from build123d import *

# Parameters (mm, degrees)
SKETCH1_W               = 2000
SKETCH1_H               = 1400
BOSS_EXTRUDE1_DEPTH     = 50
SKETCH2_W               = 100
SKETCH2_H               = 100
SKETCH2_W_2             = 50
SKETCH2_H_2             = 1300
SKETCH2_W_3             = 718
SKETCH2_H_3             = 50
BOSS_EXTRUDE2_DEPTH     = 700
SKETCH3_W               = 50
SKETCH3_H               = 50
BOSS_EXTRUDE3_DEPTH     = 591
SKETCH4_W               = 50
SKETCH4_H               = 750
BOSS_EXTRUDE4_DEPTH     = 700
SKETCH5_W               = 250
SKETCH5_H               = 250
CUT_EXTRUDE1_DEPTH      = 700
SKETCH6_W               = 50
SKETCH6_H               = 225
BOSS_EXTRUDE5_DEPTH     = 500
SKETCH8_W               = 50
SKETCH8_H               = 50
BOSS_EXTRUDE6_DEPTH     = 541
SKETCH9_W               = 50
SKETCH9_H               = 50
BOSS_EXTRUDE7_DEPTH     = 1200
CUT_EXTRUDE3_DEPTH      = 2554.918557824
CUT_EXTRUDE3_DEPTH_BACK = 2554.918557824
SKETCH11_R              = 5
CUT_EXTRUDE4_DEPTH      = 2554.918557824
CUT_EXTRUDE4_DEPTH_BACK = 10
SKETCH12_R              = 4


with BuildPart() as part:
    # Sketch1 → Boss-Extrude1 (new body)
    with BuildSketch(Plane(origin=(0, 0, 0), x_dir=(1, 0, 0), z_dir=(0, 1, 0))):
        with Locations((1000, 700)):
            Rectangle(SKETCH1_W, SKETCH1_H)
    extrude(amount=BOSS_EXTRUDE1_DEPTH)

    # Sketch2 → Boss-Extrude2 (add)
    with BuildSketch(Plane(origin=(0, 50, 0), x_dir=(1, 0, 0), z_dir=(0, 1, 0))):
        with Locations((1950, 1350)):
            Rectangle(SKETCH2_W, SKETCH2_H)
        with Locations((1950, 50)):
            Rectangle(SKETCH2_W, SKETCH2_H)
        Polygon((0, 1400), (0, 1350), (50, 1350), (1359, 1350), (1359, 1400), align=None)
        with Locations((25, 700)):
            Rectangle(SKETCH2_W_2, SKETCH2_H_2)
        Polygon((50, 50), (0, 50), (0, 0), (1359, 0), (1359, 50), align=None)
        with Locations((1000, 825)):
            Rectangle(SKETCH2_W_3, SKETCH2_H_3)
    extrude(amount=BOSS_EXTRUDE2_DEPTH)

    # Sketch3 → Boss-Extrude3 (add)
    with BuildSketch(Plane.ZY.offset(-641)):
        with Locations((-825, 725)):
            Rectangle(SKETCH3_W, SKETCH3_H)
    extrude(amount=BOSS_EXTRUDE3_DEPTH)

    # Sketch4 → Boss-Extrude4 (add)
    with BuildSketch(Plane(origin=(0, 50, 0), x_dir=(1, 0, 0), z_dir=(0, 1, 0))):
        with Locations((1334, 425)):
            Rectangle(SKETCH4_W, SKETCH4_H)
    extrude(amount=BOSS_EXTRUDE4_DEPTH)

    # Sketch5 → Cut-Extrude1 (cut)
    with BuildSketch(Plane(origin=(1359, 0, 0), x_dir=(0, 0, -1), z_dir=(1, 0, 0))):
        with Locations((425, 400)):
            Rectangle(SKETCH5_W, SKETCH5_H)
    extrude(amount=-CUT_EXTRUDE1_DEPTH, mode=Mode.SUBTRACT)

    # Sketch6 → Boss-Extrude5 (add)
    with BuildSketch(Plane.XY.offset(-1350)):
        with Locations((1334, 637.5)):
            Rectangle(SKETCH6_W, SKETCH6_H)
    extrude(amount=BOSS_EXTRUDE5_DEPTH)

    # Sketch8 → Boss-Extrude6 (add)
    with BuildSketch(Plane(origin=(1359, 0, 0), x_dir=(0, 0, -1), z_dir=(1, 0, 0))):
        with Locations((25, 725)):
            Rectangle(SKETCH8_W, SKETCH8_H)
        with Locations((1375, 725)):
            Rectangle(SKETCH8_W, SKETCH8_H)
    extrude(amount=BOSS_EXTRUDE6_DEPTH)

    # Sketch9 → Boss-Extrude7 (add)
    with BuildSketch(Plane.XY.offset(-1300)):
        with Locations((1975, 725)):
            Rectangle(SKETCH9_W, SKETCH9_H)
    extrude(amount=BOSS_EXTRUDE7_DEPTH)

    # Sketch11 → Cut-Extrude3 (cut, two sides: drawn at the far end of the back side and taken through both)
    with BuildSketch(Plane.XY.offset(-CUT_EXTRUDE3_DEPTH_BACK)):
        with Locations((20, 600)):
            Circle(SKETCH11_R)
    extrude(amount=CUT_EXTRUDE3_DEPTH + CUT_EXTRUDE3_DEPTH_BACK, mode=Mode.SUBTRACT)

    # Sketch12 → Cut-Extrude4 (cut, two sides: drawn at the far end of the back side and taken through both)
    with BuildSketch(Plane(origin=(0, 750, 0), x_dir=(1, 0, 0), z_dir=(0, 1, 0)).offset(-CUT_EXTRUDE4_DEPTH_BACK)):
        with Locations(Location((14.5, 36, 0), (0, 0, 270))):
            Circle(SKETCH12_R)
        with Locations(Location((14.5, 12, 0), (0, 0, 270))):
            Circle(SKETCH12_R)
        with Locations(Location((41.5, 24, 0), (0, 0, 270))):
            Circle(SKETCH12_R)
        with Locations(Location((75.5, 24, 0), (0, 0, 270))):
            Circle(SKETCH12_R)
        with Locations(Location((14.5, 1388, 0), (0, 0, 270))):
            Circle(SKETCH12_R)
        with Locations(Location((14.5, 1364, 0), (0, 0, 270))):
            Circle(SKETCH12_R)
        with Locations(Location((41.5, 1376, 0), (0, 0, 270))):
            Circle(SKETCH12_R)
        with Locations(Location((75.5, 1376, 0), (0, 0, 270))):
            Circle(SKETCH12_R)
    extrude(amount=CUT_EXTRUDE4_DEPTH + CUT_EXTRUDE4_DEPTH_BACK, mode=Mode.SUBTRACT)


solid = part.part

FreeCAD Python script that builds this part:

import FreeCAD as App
import Part
import Sketcher
from FreeCAD import Vector

doc = App.newDocument("Part")
body = doc.addObject("PartDesign::Body", "Body")

sketch1 = doc.addObject("Sketcher::SketchObject", "Sketch")
body.addObject(sketch1)
sketch1.AttachmentSupport = (doc.XZ_Plane, [""])
sketch1.MapMode = "FlatFace"
sketch1.addGeometry([
    Part.LineSegment(Vector(0, -1400, 0), Vector(0, 0, 0)),
    Part.LineSegment(Vector(0, 0, 0), Vector(2000, 0, 0)),
    Part.LineSegment(Vector(2000, 0, 0), Vector(2000, -1400, 0)),
    Part.LineSegment(Vector(2000, -1400, 0), Vector(0, -1400, 0)),
], False)
sketch1.addConstraint([
    Sketcher.Constraint("Coincident", 0, 2, 1, 1),
    Sketcher.Constraint("Coincident", 1, 2, 2, 1),
    Sketcher.Constraint("Coincident", 2, 2, 3, 1),
    Sketcher.Constraint("Coincident", 3, 2, 0, 1),
    Sketcher.Constraint("Vertical", 0),
    Sketcher.Constraint("Horizontal", 1),
    Sketcher.Constraint("Vertical", 2),
    Sketcher.Constraint("Horizontal", 3),
    Sketcher.Constraint("Coincident", 0, 2, -1, 1),
    Sketcher.Constraint("DistanceX", 1, 1, 1, 2, 2000.0),
    Sketcher.Constraint("DistanceY", 0, 1, 0, 2, 1400.0),
])
pad1 = doc.addObject("PartDesign::Pad", "Pad")
body.addObject(pad1)
pad1.Profile = sketch1
pad1.Length = 50
pad1.Reversed = True

sketch2 = doc.addObject("Sketcher::SketchObject", "Sketch001")
body.addObject(sketch2)
sketch2.AttachmentSupport = (doc.XZ_Plane, [""])
sketch2.MapMode = "FlatFace"
sketch2.AttachmentOffset = App.Placement(Vector(0, 0, -50), App.Rotation())
sketch2.addGeometry([
    Part.LineSegment(Vector(1900, -1400, 0), Vector(1900, -1300, 0)),
    Part.LineSegment(Vector(1900, -1300, 0), Vector(2000, -1300, 0)),
    Part.LineSegment(Vector(2000, -1300, 0), Vector(2000, -1400, 0)),
    Part.LineSegment(Vector(2000, -1400, 0), Vector(1900, -1400, 0)),
    Part.LineSegment(Vector(1900, -100, 0), Vector(1900, 0, 0)),
    Part.LineSegment(Vector(1900, 0, 0), Vector(2000, 0, 0)),
    Part.LineSegment(Vector(2000, 0, 0), Vector(2000, -100, 0)),
    Part.LineSegment(Vector(2000, -100, 0), Vector(1900, -100, 0)),
    Part.LineSegment(Vector(0, -1400, 0), Vector(0, 0, 0)),
    Part.LineSegment(Vector(0, 0, 0), Vector(1359, 0, 0)),
    Part.LineSegment(Vector(1359, 0, 0), Vector(1359, -50, 0)),
    Part.LineSegment(Vector(1359, -50, 0), Vector(50, -50, 0)),
    Part.LineSegment(Vector(50, -50, 0), Vector(50, -1350, 0)),
    Part.LineSegment(Vector(50, -1350, 0), Vector(1359, -1350, 0)),
    Part.LineSegment(Vector(1359, -1350, 0), Vector(1359, -1400, 0)),
    Part.LineSegment(Vector(1359, -1400, 0), Vector(0, -1400, 0)),
    Part.LineSegment(Vector(641, -850, 0), Vector(641, -800, 0)),
    Part.LineSegment(Vector(641, -800, 0), Vector(1359, -800, 0)),
    Part.LineSegment(Vector(1359, -800, 0), Vector(1359, -850, 0)),
    Part.LineSegment(Vector(1359, -850, 0), Vector(641, -850, 0)),
], False)
sketch2.addConstraint([
    Sketcher.Constraint("Coincident", 0, 2, 1, 1),
    Sketcher.Constraint("Coincident", 1, 2, 2, 1),
    Sketcher.Constraint("Coincident", 2, 2, 3, 1),
    Sketcher.Constraint("Coincident", 3, 2, 0, 1),
    Sketcher.Constraint("Coincident", 4, 2, 5, 1),
    Sketcher.Constraint("Coincident", 5, 2, 6, 1),
    Sketcher.Constraint("Coincident", 6, 2, 7, 1),
    Sketcher.Constraint("Coincident", 7, 2, 4, 1),
    Sketcher.Constraint("Coincident", 8, 2, 9, 1),
    Sketcher.Constraint("Coincident", 9, 2, 10, 1),
    Sketcher.Constraint("Coincident", 10, 2, 11, 1),
    Sketcher.Constraint("Coincident", 11, 2, 12, 1),
    Sketcher.Constraint("Coincident", 12, 2, 13, 1),
    Sketcher.Constraint("Coincident", 13, 2, 14, 1),
    Sketcher.Constraint("Coincident", 14, 2, 15, 1),
    Sketcher.Constraint("Coincident", 15, 2, 8, 1),
    Sketcher.Constraint("Coincident", 16, 2, 17, 1),
    Sketcher.Constraint("Coincident", 17, 2, 18, 1),
    Sketcher.Constraint("Coincident", 18, 2, 19, 1),
    Sketcher.Constraint("Coincident", 19, 2, 16, 1),
    Sketcher.Constraint("Vertical", 0),
    Sketcher.Constraint("Horizontal", 1),
    Sketcher.Constraint("Vertical", 2),
    Sketcher.Constraint("Horizontal", 3),
    Sketcher.Constraint("Vertical", 4),
    Sketcher.Constraint("Horizontal", 5),
    Sketcher.Constraint("Vertical", 6),
    Sketcher.Constraint("Horizontal", 7),
    Sketcher.Constraint("Vertical", 8),
    Sketcher.Constraint("Horizontal", 9),
    Sketcher.Constraint("Vertical", 10),
    Sketcher.Constraint("Horizontal", 11),
    Sketcher.Constraint("Vertical", 12),
    Sketcher.Constraint("Horizontal", 13),
    Sketcher.Constraint("Vertical", 14),
    Sketcher.Constraint("Horizontal", 15),
    Sketcher.Constraint("Vertical", 16),
    Sketcher.Constraint("Horizontal", 17),
    Sketcher.Constraint("Vertical", 18),
    Sketcher.Constraint("Horizontal", 19),
    Sketcher.Constraint("Coincident", 8, 2, -1, 1),
    Sketcher.Constraint("PointOnObject", 4, 2, -1),
    Sketcher.Constraint("Horizontal", 3, 2, 14, 2),
    Sketcher.Constraint("Vertical", 3, 2, 4, 2),
    Sketcher.Constraint("Vertical", 2, 2, 5, 2),
    Sketcher.Constraint("Vertical", 10, 2, 13, 2),
    Sketcher.Constraint("Vertical", 14, 2, 17, 2),
    Sketcher.Constraint("Equal", 7, 0),
    Sketcher.Constraint("Equal", 2, 4),
    Sketcher.Constraint("Equal", 10, 14),
    Sketcher.Constraint("Equal", 14, 16),
    Sketcher.Constraint("DistanceX", 1, 1, 1, 2, 100.0),
    Sketcher.Constraint("DistanceX", 9, 1, 9, 2, 1359.0),
    Sketcher.Constraint("DistanceX", 11, 2, 11, 1, 1309.0),
    Sketcher.Constraint("DistanceX", 17, 1, 17, 2, 718.0),
    Sketcher.Constraint("DistanceY", 8, 1, 8, 2, 1400.0),
    Sketcher.Constraint("DistanceY", 10, 2, 10, 1, 50.0),
    Sketcher.Constraint("DistanceX", -1, 1, 0, 2, 1900.0),
    Sketcher.Constraint("DistanceY", 16, 2, -1, 1, 800.0),
])
pad2 = doc.addObject("PartDesign::Pad", "Pad001")
body.addObject(pad2)
pad2.Profile = sketch2
pad2.Length = 700
pad2.Reversed = True

sketch3 = doc.addObject("Sketcher::SketchObject", "Sketch002")
body.addObject(sketch3)
sketch3.AttachmentSupport = (doc.YZ_Plane, [""])
sketch3.MapMode = "FlatFace"
sketch3.AttachmentOffset = App.Placement(Vector(0, 0, 641), App.Rotation())
sketch3.addGeometry([
    Part.LineSegment(Vector(750, -850, 0), Vector(700, -850, 0)),
    Part.LineSegment(Vector(700, -850, 0), Vector(700, -800, 0)),
    Part.LineSegment(Vector(700, -800, 0), Vector(750, -800, 0)),
    Part.LineSegment(Vector(750, -800, 0), Vector(750, -850, 0)),
], False)
sketch3.addConstraint([
    Sketcher.Constraint("Coincident", 0, 2, 1, 1),
    Sketcher.Constraint("Coincident", 1, 2, 2, 1),
    Sketcher.Constraint("Coincident", 2, 2, 3, 1),
    Sketcher.Constraint("Coincident", 3, 2, 0, 1),
    Sketcher.Constraint("Horizontal", 0),
    Sketcher.Constraint("Vertical", 1),
    Sketcher.Constraint("Horizontal", 2),
    Sketcher.Constraint("Vertical", 3),
    Sketcher.Constraint("Equal", 2, 1),
    Sketcher.Constraint("DistanceX", 0, 2, 0, 1, 50.0),
    Sketcher.Constraint("DistanceX", -1, 1, 0, 2, 700.0),
    Sketcher.Constraint("DistanceY", 0, 2, -1, 1, 850.0),
])
pad3 = doc.addObject("PartDesign::Pad", "Pad002")
body.addObject(pad3)
pad3.Profile = sketch3
pad3.Length = 591
pad3.Reversed = True

sketch4 = doc.addObject("Sketcher::SketchObject", "Sketch003")
body.addObject(sketch4)
sketch4.AttachmentSupport = (doc.XZ_Plane, [""])
sketch4.MapMode = "FlatFace"
sketch4.AttachmentOffset = App.Placement(Vector(0, 0, -50), App.Rotation())
sketch4.addGeometry([
    Part.LineSegment(Vector(1309, -800, 0), Vector(1309, -50, 0)),
    Part.LineSegment(Vector(1309, -50, 0), Vector(1359, -50, 0)),
    Part.LineSegment(Vector(1359, -50, 0), Vector(1359, -800, 0)),
    Part.LineSegment(Vector(1359, -800, 0), Vector(1309, -800, 0)),
], False)
sketch4.addConstraint([
    Sketcher.Constraint("Coincident", 0, 2, 1, 1),
    Sketcher.Constraint("Coincident", 1, 2, 2, 1),
    Sketcher.Constraint("Coincident", 2, 2, 3, 1),
    Sketcher.Constraint("Coincident", 3, 2, 0, 1),
    Sketcher.Constraint("Vertical", 0),
    Sketcher.Constraint("Horizontal", 1),
    Sketcher.Constraint("Vertical", 2),
    Sketcher.Constraint("Horizontal", 3),
    Sketcher.Constraint("DistanceX", 1, 1, 1, 2, 50.0),
    Sketcher.Constraint("DistanceY", 0, 1, 0, 2, 750.0),
    Sketcher.Constraint("DistanceX", -1, 1, 0, 2, 1309.0),
    Sketcher.Constraint("DistanceY", 0, 2, -1, 1, 50.0),
])
pad4 = doc.addObject("PartDesign::Pad", "Pad003")
body.addObject(pad4)
pad4.Profile = sketch4
pad4.Length = 700
pad4.Reversed = True

sketch5 = doc.addObject("Sketcher::SketchObject", "Sketch004")
body.addObject(sketch5)
sketch5.AttachmentSupport = (doc.YZ_Plane, [""])
sketch5.MapMode = "FlatFace"
sketch5.AttachmentOffset = App.Placement(Vector(0, 0, 1359), App.Rotation())
sketch5.addGeometry([
    Part.LineSegment(Vector(525, -300, 0), Vector(275, -300, 0)),
    Part.LineSegment(Vector(275, -300, 0), Vector(275, -550, 0)),
    Part.LineSegment(Vector(275, -550, 0), Vector(525, -550, 0)),
    Part.LineSegment(Vector(525, -550, 0), Vector(525, -300, 0)),
], False)
sketch5.addConstraint([
    Sketcher.Constraint("Coincident", 0, 2, 1, 1),
    Sketcher.Constraint("Coincident", 1, 2, 2, 1),
    Sketcher.Constraint("Coincident", 2, 2, 3, 1),
    Sketcher.Constraint("Coincident", 3, 2, 0, 1),
    Sketcher.Constraint("Horizontal", 0),
    Sketcher.Constraint("Vertical", 1),
    Sketcher.Constraint("Horizontal", 2),
    Sketcher.Constraint("Vertical", 3),
    Sketcher.Constraint("Equal", 2, 1),
    Sketcher.Constraint("DistanceX", 0, 2, 0, 1, 250.0),
    Sketcher.Constraint("DistanceX", -1, 1, 0, 2, 275.0),
    Sketcher.Constraint("DistanceY", 0, 2, -1, 1, 300.0),
])
pocket1 = doc.addObject("PartDesign::Pocket", "Pocket")
body.addObject(pocket1)
pocket1.Profile = sketch5
pocket1.Length = 700

sketch6 = doc.addObject("Sketcher::SketchObject", "Sketch005")
body.addObject(sketch6)
sketch6.AttachmentSupport = (doc.XY_Plane, [""])
sketch6.MapMode = "FlatFace"
sketch6.AttachmentOffset = App.Placement(Vector(0, 0, -1350), App.Rotation())
sketch6.addGeometry([
    Part.LineSegment(Vector(1309, 750, 0), Vector(1309, 525, 0)),
    Part.LineSegment(Vector(1309, 525, 0), Vector(1359, 525, 0)),
    Part.LineSegment(Vector(1359, 525, 0), Vector(1359, 750, 0)),
    Part.LineSegment(Vector(1359, 750, 0), Vector(1309, 750, 0)),
], False)
sketch6.addConstraint([
    Sketcher.Constraint("Coincident", 0, 2, 1, 1),
    Sketcher.Constraint("Coincident", 1, 2, 2, 1),
    Sketcher.Constraint("Coincident", 2, 2, 3, 1),
    Sketcher.Constraint("Coincident", 3, 2, 0, 1),
    Sketcher.Constraint("Vertical", 0),
    Sketcher.Constraint("Horizontal", 1),
    Sketcher.Constraint("Vertical", 2),
    Sketcher.Constraint("Horizontal", 3),
    Sketcher.Constraint("DistanceX", 1, 1, 1, 2, 50.0),
    Sketcher.Constraint("DistanceY", 0, 2, 0, 1, 225.0),
    Sketcher.Constraint("DistanceX", -1, 1, 0, 2, 1309.0),
    Sketcher.Constraint("DistanceY", -1, 1, 0, 2, 525.0),
])
pad5 = doc.addObject("PartDesign::Pad", "Pad004")
body.addObject(pad5)
pad5.Profile = sketch6
pad5.Length = 500

sketch7 = doc.addObject("Sketcher::SketchObject", "Sketch006")
body.addObject(sketch7)
sketch7.AttachmentSupport = (doc.YZ_Plane, [""])
sketch7.MapMode = "FlatFace"
sketch7.AttachmentOffset = App.Placement(Vector(0, 0, 1359), App.Rotation())
sketch7.addGeometry([
    Part.LineSegment(Vector(750, 0, 0), Vector(700, 0, 0)),
    Part.LineSegment(Vector(700, 0, 0), Vector(700, -50, 0)),
    Part.LineSegment(Vector(700, -50, 0), Vector(750, -50, 0)),
    Part.LineSegment(Vector(750, -50, 0), Vector(750, 0, 0)),
    Part.LineSegment(Vector(750, -1350, 0), Vector(700, -1350, 0)),
    Part.LineSegment(Vector(700, -1350, 0), Vector(700, -1400, 0)),
    Part.LineSegment(Vector(700, -1400, 0), Vector(750, -1400, 0)),
    Part.LineSegment(Vector(750, -1400, 0), Vector(750, -1350, 0)),
], False)
sketch7.addConstraint([
    Sketcher.Constraint("Coincident", 0, 2, 1, 1),
    Sketcher.Constraint("Coincident", 1, 2, 2, 1),
    Sketcher.Constraint("Coincident", 2, 2, 3, 1),
    Sketcher.Constraint("Coincident", 3, 2, 0, 1),
    Sketcher.Constraint("Coincident", 4, 2, 5, 1),
    Sketcher.Constraint("Coincident", 5, 2, 6, 1),
    Sketcher.Constraint("Coincident", 6, 2, 7, 1),
    Sketcher.Constraint("Coincident", 7, 2, 4, 1),
    Sketcher.Constraint("Horizontal", 0),
    Sketcher.Constraint("Vertical", 1),
    Sketcher.Constraint("Horizontal", 2),
    Sketcher.Constraint("Vertical", 3),
    Sketcher.Constraint("Horizontal", 4),
    Sketcher.Constraint("Vertical", 5),
    Sketcher.Constraint("Horizontal", 6),
    Sketcher.Constraint("Vertical", 7),
    Sketcher.Constraint("PointOnObject", 0, 2, -1),
    Sketcher.Constraint("Vertical", 1, 2, 4, 2),
    Sketcher.Constraint("Vertical", 3, 2, 6, 2),
    Sketcher.Constraint("Equal", 6, 1),
    Sketcher.Constraint("Equal", 3, 5),
    Sketcher.Constraint("DistanceX", 0, 2, 0, 1, 50.0),
    Sketcher.Constraint("DistanceX", -1, 1, 0, 2, 700.0),
    Sketcher.Constraint("DistanceY", 4, 2, -1, 1, 1350.0),
])
pad6 = doc.addObject("PartDesign::Pad", "Pad005")
body.addObject(pad6)
pad6.Profile = sketch7
pad6.Length = 541

sketch8 = doc.addObject("Sketcher::SketchObject", "Sketch007")
body.addObject(sketch8)
sketch8.AttachmentSupport = (doc.XY_Plane, [""])
sketch8.MapMode = "FlatFace"
sketch8.AttachmentOffset = App.Placement(Vector(0, 0, -1300), App.Rotation())
sketch8.addGeometry([
    Part.LineSegment(Vector(1950, 750, 0), Vector(1950, 700, 0)),
    Part.LineSegment(Vector(1950, 700, 0), Vector(2000, 700, 0)),
    Part.LineSegment(Vector(2000, 700, 0), Vector(2000, 750, 0)),
    Part.LineSegment(Vector(2000, 750, 0), Vector(1950, 750, 0)),
], False)
sketch8.addConstraint([
    Sketcher.Constraint("Coincident", 0, 2, 1, 1),
    Sketcher.Constraint("Coincident", 1, 2, 2, 1),
    Sketcher.Constraint("Coincident", 2, 2, 3, 1),
    Sketcher.Constraint("Coincident", 3, 2, 0, 1),
    Sketcher.Constraint("Vertical", 0),
    Sketcher.Constraint("Horizontal", 1),
    Sketcher.Constraint("Vertical", 2),
    Sketcher.Constraint("Horizontal", 3),
    Sketcher.Constraint("Equal", 3, 0),
    Sketcher.Constraint("DistanceX", 1, 1, 1, 2, 50.0),
    Sketcher.Constraint("DistanceX", -1, 1, 0, 2, 1950.0),
    Sketcher.Constraint("DistanceY", -1, 1, 0, 2, 700.0),
])
pad7 = doc.addObject("PartDesign::Pad", "Pad006")
body.addObject(pad7)
pad7.Profile = sketch8
pad7.Length = 1200

sketch9 = doc.addObject("Sketcher::SketchObject", "Sketch008")
body.addObject(sketch9)
sketch9.AttachmentSupport = (doc.XY_Plane, [""])
sketch9.MapMode = "FlatFace"
sketch9.addGeometry(Part.Circle(Vector(20, 600, 0), Vector(0, 0, 1), 5), False)
sketch9.addConstraint([
    Sketcher.Constraint("Diameter", 0, 10.0),
    Sketcher.Constraint("DistanceX", -1, 1, 0, 3, 20.0),
    Sketcher.Constraint("DistanceY", -1, 1, 0, 3, 600.0),
])
pocket2 = doc.addObject("PartDesign::Pocket", "Pocket001")
body.addObject(pocket2)
pocket2.Profile = sketch9
pocket2.Type = "ThroughAll"
pocket2.Midplane = True

sketch10 = doc.addObject("Sketcher::SketchObject", "Sketch009")
body.addObject(sketch10)
sketch10.AttachmentSupport = (doc.XZ_Plane, [""])
sketch10.MapMode = "FlatFace"
sketch10.AttachmentOffset = App.Placement(Vector(0, 0, -750), App.Rotation())
sketch10.addGeometry([
    Part.Circle(Vector(14.5, -36, 0), Vector(0, 0, 1), 4),
    Part.Circle(Vector(14.5, -12, 0), Vector(0, 0, 1), 4),
    Part.Circle(Vector(41.5, -24, 0), Vector(0, 0, 1), 4),
    Part.Circle(Vector(75.5, -24, 0), Vector(0, 0, 1), 4),
    Part.Circle(Vector(14.5, -1388, 0), Vector(0, 0, 1), 4),
    Part.Circle(Vector(14.5, -1364, 0), Vector(0, 0, 1), 4),
    Part.Circle(Vector(41.5, -1376, 0), Vector(0, 0, 1), 4),
    Part.Circle(Vector(75.5, -1376, 0), Vector(0, 0, 1), 4),
], False)
sketch10.addConstraint([
    Sketcher.Constraint("Equal", 0, 1),
    Sketcher.Constraint("Equal", 1, 2),
    Sketcher.Constraint("Equal", 2, 3),
    Sketcher.Constraint("Equal", 3, 4),
    Sketcher.Constraint("Equal", 4, 5),
    Sketcher.Constraint("Equal", 5, 6),
    Sketcher.Constraint("Equal", 6, 7),
    Sketcher.Constraint("Horizontal", 2, 3, 3, 3),
    Sketcher.Constraint("Horizontal", 6, 3, 7, 3),
    Sketcher.Constraint("Vertical", 0, 3, 1, 3),
    Sketcher.Constraint("Vertical", 1, 3, 4, 3),
    Sketcher.Constraint("Vertical", 4, 3, 5, 3),
    Sketcher.Constraint("Vertical", 2, 3, 6, 3),
    Sketcher.Constraint("Vertical", 3, 3, 7, 3),
    Sketcher.Constraint("Diameter", 0, 8.0),
    Sketcher.Constraint("DistanceY", 0, 3, -1, 1, 36.0),
    Sketcher.Constraint("DistanceY", 1, 3, -1, 1, 12.0),
    Sketcher.Constraint("DistanceY", 2, 3, -1, 1, 24.0),
    Sketcher.Constraint("DistanceY", 4, 3, -1, 1, 1388.0),
    Sketcher.Constraint("DistanceY", 5, 3, -1, 1, 1364.0),
    Sketcher.Constraint("DistanceY", 6, 3, -1, 1, 1376.0),
    Sketcher.Constraint("DistanceX", 0, 3, 2, 3, 27.0),
    Sketcher.Constraint("DistanceX", 2, 3, 3, 3, 34.0),
    Sketcher.Constraint("DistanceX", -1, 1, 0, 3, 14.5),
])
pocket3 = doc.addObject("PartDesign::Pocket", "Pocket002")
body.addObject(pocket3)
pocket3.Profile = sketch10
pocket3.Type = "TwoLengths"
pocket3.Length = 2554.918558
pocket3.Length2 = 10

doc.recompute()
